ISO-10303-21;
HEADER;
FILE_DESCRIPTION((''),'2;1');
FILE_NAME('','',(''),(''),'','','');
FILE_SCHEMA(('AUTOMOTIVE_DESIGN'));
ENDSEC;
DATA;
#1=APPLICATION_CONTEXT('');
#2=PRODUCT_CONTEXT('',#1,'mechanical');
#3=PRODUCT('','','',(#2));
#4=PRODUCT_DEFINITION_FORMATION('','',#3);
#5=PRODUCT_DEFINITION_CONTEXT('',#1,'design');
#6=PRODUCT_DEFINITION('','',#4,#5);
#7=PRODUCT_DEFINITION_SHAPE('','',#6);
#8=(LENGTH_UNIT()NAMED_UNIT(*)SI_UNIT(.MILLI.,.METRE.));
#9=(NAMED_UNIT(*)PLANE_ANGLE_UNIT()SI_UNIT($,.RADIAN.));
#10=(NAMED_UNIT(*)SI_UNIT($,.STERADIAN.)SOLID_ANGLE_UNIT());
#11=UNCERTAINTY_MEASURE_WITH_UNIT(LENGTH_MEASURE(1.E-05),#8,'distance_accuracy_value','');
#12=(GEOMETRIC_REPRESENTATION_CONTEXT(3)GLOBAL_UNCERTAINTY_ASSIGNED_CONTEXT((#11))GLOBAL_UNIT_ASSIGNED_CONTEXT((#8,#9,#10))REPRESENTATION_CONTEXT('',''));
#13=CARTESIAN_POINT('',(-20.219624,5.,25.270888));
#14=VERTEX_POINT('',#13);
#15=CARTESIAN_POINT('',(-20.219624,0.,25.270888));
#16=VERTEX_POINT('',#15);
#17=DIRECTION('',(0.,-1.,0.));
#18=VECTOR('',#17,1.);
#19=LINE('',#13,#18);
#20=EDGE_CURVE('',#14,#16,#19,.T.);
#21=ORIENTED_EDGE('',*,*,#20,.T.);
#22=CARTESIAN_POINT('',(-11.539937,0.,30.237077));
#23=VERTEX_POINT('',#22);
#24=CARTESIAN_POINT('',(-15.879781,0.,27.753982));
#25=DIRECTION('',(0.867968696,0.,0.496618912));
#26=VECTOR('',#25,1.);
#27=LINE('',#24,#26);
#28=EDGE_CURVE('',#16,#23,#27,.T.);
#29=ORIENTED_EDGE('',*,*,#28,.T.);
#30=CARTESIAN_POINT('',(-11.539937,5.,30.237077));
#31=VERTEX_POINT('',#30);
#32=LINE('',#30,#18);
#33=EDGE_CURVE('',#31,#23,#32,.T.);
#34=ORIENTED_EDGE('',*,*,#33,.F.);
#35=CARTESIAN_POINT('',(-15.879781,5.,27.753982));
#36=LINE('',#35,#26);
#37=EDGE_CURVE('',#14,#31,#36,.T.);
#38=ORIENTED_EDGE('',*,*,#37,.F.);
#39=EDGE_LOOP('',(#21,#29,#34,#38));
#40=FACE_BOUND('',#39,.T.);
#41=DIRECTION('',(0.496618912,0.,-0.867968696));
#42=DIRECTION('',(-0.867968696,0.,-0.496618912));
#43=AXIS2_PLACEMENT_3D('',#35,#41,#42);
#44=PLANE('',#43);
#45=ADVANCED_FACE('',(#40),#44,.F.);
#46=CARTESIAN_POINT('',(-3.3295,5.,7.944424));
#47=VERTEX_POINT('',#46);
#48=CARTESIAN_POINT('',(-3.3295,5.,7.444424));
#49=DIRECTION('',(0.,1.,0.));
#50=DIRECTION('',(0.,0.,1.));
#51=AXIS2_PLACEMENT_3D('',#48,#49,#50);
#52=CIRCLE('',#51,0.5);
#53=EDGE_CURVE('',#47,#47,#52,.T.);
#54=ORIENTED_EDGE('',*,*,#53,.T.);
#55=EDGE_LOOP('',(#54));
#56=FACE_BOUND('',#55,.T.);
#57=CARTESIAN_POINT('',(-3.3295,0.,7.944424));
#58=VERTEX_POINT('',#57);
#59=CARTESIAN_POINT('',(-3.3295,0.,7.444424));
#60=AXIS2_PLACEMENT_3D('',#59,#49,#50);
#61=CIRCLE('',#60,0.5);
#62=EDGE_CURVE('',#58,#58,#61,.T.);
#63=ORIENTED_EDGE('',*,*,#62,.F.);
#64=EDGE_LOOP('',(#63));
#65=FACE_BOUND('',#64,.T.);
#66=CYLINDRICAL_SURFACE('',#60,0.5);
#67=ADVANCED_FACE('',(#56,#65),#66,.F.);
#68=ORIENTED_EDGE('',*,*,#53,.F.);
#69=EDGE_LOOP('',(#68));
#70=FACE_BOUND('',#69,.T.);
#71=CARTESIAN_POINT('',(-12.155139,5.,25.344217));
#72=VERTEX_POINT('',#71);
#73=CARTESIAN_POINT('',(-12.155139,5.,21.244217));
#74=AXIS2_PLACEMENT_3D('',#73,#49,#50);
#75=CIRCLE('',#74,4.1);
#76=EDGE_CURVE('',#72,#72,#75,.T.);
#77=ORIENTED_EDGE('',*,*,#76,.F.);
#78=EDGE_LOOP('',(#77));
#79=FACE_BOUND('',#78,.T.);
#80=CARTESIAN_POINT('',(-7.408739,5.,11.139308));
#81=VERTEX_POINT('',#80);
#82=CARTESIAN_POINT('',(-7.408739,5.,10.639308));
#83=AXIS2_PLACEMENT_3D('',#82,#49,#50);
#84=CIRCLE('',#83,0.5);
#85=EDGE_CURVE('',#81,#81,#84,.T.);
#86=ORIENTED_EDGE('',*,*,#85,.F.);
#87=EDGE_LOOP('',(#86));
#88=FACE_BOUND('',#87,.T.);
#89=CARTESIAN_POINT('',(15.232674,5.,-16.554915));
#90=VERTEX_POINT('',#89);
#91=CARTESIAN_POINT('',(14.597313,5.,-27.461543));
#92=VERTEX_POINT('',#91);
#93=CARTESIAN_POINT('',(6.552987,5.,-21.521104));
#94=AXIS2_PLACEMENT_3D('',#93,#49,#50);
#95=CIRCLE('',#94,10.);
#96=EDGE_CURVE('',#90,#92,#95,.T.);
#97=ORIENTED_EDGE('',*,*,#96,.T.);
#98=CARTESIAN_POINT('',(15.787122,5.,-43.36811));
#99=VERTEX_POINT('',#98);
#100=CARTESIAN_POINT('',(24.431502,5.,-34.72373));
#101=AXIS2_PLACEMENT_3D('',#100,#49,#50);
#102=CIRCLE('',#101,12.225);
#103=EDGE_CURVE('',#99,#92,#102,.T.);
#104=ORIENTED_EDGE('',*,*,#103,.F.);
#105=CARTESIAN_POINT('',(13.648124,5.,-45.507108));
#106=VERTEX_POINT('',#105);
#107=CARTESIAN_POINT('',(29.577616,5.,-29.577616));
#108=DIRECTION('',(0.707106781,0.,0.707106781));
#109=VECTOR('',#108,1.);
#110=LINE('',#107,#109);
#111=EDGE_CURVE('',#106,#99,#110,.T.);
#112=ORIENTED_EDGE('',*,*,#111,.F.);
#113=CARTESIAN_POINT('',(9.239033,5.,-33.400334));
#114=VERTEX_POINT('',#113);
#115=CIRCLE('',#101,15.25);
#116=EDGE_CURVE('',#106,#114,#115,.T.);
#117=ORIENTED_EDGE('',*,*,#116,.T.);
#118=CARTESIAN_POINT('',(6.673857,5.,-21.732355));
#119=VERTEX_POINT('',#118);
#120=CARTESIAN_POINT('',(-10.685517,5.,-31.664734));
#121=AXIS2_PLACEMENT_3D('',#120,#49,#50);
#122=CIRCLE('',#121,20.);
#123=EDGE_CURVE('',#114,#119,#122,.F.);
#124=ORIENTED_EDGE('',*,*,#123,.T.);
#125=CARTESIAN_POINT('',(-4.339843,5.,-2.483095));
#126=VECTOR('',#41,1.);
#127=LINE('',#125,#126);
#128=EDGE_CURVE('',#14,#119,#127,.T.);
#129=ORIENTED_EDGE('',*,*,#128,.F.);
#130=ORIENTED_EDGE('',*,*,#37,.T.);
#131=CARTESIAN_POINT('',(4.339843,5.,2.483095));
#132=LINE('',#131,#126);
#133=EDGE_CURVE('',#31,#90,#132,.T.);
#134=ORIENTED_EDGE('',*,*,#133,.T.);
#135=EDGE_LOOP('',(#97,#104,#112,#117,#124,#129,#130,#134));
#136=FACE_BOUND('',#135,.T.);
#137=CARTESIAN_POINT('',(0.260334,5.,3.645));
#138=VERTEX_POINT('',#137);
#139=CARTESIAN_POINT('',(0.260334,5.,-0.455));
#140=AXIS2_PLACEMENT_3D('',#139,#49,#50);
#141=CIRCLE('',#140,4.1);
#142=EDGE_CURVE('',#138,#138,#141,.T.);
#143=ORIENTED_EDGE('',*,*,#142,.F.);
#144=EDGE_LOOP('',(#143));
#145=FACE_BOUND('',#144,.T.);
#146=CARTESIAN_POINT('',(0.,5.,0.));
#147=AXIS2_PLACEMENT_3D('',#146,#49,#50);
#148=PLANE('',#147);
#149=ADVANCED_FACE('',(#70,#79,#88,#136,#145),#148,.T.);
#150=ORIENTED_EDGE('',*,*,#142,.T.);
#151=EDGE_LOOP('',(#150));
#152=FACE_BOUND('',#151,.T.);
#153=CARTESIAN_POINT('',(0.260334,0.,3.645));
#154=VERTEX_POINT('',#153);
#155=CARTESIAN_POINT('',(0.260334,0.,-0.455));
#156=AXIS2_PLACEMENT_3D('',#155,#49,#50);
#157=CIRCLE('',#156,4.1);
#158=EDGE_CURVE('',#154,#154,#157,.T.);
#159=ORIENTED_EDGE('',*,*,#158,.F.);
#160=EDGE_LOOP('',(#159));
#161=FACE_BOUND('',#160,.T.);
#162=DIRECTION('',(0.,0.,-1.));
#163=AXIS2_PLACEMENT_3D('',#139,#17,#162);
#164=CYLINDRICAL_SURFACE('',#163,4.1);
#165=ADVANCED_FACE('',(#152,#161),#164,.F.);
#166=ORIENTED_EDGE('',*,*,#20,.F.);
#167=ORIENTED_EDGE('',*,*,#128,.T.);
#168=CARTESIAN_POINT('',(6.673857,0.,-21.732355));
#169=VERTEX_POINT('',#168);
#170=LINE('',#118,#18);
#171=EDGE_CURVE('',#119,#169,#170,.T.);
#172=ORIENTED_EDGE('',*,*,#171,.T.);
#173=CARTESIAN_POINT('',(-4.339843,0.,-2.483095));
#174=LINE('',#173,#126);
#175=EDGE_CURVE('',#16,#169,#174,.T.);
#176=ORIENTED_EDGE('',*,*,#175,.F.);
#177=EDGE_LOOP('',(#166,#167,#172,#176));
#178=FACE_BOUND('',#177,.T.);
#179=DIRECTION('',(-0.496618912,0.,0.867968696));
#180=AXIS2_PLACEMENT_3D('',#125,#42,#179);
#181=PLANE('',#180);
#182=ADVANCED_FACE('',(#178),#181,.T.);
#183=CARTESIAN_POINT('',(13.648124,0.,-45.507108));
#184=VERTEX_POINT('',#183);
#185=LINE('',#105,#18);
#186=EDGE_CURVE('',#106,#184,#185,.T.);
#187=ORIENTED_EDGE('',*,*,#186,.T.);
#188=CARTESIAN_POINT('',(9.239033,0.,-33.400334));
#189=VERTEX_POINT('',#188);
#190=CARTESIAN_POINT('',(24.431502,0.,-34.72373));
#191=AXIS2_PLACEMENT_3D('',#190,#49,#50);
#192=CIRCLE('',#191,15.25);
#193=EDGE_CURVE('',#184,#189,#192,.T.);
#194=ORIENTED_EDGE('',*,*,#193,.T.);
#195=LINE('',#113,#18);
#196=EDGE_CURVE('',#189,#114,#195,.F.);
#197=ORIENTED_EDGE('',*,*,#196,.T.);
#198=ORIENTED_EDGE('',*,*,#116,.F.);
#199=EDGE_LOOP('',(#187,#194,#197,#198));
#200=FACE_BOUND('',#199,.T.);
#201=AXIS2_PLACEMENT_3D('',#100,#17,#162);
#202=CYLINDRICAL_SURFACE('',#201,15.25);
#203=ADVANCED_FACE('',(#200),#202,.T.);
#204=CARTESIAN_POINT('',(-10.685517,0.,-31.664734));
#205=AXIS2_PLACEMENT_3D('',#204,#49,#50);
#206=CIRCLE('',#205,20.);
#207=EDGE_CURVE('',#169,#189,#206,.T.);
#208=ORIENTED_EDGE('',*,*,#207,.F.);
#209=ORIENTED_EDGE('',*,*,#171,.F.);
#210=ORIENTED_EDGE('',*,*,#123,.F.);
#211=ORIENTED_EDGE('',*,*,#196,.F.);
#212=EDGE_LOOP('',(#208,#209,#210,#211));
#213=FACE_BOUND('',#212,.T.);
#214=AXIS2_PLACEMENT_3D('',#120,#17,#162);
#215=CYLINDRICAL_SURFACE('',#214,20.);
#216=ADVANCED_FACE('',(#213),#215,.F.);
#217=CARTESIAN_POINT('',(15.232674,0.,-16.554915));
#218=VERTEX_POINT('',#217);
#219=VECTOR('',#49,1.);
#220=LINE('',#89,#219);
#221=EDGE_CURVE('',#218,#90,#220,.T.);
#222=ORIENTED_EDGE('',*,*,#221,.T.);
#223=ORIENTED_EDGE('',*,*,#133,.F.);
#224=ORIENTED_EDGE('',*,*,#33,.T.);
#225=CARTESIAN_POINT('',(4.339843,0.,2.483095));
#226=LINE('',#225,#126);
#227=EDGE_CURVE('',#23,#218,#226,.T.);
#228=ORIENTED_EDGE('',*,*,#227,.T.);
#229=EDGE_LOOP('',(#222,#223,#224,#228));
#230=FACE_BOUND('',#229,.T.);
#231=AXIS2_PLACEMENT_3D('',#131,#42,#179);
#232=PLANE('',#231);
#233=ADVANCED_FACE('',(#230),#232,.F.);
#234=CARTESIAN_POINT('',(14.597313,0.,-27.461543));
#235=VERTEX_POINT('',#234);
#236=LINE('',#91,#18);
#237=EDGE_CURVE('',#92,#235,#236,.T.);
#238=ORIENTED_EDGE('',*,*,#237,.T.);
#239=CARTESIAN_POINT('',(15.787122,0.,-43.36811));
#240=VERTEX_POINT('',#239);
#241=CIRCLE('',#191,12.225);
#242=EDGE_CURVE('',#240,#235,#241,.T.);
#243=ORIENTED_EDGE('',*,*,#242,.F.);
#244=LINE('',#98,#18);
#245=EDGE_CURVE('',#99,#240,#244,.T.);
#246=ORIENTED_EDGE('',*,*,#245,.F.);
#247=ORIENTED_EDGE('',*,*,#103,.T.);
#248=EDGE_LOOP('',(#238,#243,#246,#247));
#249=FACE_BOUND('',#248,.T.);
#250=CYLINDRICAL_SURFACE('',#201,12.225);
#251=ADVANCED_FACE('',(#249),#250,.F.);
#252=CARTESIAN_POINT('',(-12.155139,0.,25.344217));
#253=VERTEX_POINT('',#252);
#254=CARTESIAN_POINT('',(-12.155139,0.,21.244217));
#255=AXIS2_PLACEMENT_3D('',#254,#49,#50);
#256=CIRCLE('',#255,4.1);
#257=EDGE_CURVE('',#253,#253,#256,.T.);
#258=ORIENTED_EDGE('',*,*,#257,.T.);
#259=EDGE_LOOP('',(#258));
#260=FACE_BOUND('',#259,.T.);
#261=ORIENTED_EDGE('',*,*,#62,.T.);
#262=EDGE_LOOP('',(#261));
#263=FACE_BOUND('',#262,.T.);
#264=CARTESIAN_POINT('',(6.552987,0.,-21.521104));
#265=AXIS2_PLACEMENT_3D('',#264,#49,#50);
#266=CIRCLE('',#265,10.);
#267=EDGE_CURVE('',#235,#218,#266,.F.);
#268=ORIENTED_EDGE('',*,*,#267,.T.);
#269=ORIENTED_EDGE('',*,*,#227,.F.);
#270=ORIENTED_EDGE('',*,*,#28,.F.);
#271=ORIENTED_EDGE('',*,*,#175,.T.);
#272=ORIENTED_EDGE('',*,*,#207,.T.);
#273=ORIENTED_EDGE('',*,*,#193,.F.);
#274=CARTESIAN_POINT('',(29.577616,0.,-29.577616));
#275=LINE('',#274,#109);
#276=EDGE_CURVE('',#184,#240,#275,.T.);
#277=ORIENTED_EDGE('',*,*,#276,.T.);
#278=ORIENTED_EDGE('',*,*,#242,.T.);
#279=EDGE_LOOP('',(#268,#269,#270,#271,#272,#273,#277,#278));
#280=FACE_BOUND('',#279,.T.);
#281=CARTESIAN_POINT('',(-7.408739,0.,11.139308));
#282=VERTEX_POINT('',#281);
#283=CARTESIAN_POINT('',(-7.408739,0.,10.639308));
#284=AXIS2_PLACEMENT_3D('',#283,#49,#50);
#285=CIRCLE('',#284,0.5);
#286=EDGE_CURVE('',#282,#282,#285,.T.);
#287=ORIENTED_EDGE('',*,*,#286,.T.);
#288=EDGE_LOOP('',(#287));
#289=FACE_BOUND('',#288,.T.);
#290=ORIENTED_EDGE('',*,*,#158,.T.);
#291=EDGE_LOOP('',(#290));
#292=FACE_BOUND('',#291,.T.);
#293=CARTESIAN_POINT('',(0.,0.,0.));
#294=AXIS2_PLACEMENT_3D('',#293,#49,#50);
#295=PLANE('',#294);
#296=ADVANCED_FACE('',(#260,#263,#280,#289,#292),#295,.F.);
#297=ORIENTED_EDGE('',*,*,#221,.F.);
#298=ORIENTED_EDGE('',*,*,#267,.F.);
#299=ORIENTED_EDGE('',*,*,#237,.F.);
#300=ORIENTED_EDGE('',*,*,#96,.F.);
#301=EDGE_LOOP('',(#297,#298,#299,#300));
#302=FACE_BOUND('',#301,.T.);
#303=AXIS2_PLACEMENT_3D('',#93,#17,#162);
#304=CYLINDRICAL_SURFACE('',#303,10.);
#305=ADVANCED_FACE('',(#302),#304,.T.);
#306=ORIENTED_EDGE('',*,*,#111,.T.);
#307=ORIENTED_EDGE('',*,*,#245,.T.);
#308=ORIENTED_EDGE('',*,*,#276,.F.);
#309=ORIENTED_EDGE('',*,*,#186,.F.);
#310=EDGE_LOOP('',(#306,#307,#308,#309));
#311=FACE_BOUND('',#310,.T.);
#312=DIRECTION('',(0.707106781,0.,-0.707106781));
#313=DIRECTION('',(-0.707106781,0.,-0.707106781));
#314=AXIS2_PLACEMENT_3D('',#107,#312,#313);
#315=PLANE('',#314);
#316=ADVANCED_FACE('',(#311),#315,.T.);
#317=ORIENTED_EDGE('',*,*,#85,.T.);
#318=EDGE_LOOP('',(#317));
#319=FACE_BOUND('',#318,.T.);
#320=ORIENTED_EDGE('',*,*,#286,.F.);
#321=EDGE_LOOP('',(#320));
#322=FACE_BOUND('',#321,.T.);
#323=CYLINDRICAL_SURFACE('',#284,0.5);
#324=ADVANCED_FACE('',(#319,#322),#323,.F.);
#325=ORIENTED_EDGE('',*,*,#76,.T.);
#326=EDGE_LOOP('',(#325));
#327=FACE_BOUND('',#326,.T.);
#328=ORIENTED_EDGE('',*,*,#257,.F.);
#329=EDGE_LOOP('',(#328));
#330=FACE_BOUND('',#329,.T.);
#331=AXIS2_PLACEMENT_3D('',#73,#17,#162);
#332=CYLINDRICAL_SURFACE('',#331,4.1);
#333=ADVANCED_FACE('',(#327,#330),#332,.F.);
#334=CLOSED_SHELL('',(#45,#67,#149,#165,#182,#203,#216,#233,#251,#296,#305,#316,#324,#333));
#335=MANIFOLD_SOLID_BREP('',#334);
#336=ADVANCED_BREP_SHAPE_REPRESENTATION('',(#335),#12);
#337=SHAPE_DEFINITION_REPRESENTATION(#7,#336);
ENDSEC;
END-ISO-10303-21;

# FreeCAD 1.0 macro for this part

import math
import FreeCAD as App
import Part
import Sketcher
Q = App.Units.Quantity


def edges_at(feature, points):
    """Names of the edges that pass closest to the given points."""
    edges = feature.Shape.Edges
    near = lambda p: min(range(len(edges)), key=lambda i: edges[i].distToShape(Part.Vertex(*p))[0])
    return sorted({f"Edge{near(p) + 1}" for p in points})

doc = App.newDocument("Part")
params = doc.addObject("Spreadsheet::Sheet", "Params")
for row, (alias, value) in enumerate([
    ("sketch1_diameter", "8.2 mm"),
    ("sketch1_radius", "15.25 mm"),
    ("sketch1_length", "10 mm"),
    ("pad1_length", "5 mm"),
    ("fillet_radius", "20 mm"),
    ("sketch2_diameter", "1 mm"),
    ("fillet2_radius", "10 mm"),
], start=1):
    params.set(f"A{row}", alias)
    params.set(f"B{row}", "=" + value)
    params.setAlias(f"B{row}", alias)

body = doc.addObject("PartDesign::Body", "Body")

# Sketch on XZ plane
sketch1 = doc.addObject("Sketcher::SketchObject", "Sketch")
body.addObject(sketch1)
sketch1.AttachmentSupport = (doc.XZ_Plane, [""])
sketch1.MapMode = "FlatFace"
sketch1.addGeometry([
    Part.LineSegment(App.Vector(10.5, -28.5, 0), App.Vector(-20.2, 25.3, 0)),  # 0
    Part.LineSegment(App.Vector(-20.2, 25.3, 0), App.Vector(-11.5, 30.2, 0)),  # 1
    Part.LineSegment(App.Vector(-11.5, 30.2, 0), App.Vector(19.3, -23.6, 0)),  # 2
    Part.ArcOfCircle(Part.Circle(App.Vector(24.4, -34.7, 0), App.Vector(0, 0, 1), 12.2), math.radians(115), math.radians(225)),  # 3
    Part.LineSegment(App.Vector(15.8, -43.4, 0), App.Vector(13.6, -45.5, 0)),  # 4
    Part.ArcOfCircle(Part.Circle(App.Vector(24.4, -34.7, 0), App.Vector(0, 0, 1), 15.2), math.radians(156), math.radians(225)),  # 5
    Part.Circle(App.Vector(-12.2, 21.2, 0), App.Vector(0, 0, 1), 4.1),  # 6
    Part.Circle(App.Vector(0.3, -0.5, 0), App.Vector(0, 0, 1), 4.1),  # 7
], False)
sketch1.addConstraint([
    Sketcher.Constraint("Coincident", 0, 2, 1, 1),
    Sketcher.Constraint("Coincident", 1, 2, 2, 1),
    Sketcher.Constraint("Coincident", 2, 2, 3, 1),
    Sketcher.Constraint("Coincident", 3, 2, 4, 1),
    Sketcher.Constraint("Coincident", 4, 2, 5, 2),
    Sketcher.Constraint("Coincident", 5, 1, 0, 1),
    Sketcher.Constraint("Coincident", 5, 3, 3, 3),
    Sketcher.Constraint("Equal", 6, 7),
    Sketcher.Constraint("Perpendicular", 0, 1),
    Sketcher.Constraint("Perpendicular", 1, 2),
    Sketcher.Constraint("Diameter", 6, 8.2),
    Sketcher.Constraint("Angle", 4, Q("-135 deg")),
    Sketcher.Constraint("Radius", 5, 15.25),
    Sketcher.Constraint("Distance", 1, 10.0),
    Sketcher.Constraint("Radius", 3, 12.225),
    Sketcher.Constraint("DistanceY", 7, 3, -1, 1, 0.455),
    Sketcher.Constraint("DistanceY", 5, 1, -1, 1, 28.464),
    Sketcher.Constraint("DistanceX", -1, 1, 3, 3, 24.431502),
    Sketcher.Constraint("DistanceX", 6, 3, 1, 2, 0.615202),
    Sketcher.Constraint("DistanceX", 7, 3, 2, 2, 19.023498),
    Sketcher.Constraint("Distance", 2, 62.067249),
    Sketcher.Constraint("DistanceY", 3, 3, -1, 1, 34.72373),
    Sketcher.Constraint("DistanceX", 6, 3, -1, 1, 12.155139),
    Sketcher.Constraint("DistanceX", -1, 1, 3, 2, 15.787122),
    Sketcher.Constraint("DistanceY", 6, 3, 0, 2, 4.026671),
])
sketch1.setExpression("Constraints[10]", "Params.sketch1_diameter")
sketch1.setExpression("Constraints[12]", "Params.sketch1_radius")
sketch1.setExpression("Constraints[13]", "Params.sketch1_length")
pad1 = doc.addObject("PartDesign::Pad", "Pad")
body.addObject(pad1)
pad1.Profile = sketch1
pad1.setExpression("Length", "Params.pad1_length")
pad1.Reversed = True
doc.recompute()

fillet = doc.addObject("PartDesign::Fillet", "Fillet")
body.addObject(fillet)
fillet.Base = (pad1, edges_at(pad1, [(10.525, 2.5, -28.464)]))
fillet.setExpression("Radius", "Params.fillet_radius")

# Sketch on XZ plane
sketch2 = doc.addObject("Sketcher::SketchObject", "Sketch001")
body.addObject(sketch2)
sketch2.AttachmentSupport = (doc.XZ_Plane, [""])
sketch2.MapMode = "FlatFace"
sketch2.AttachmentOffset = App.Placement(App.Vector(0, 0, -5), App.Rotation())
sketch2.addGeometry([
    Part.Circle(App.Vector(-7.4, 10.6, 0), App.Vector(0, 0, 1), 0.5),
    Part.Circle(App.Vector(-3.3, 7.4, 0), App.Vector(0, 0, 1), 0.5),
], False)
sketch2.addConstraint([
    Sketcher.Constraint("Equal", 0, 1),
    Sketcher.Constraint("Diameter", 0, 1.0),
    Sketcher.Constraint("DistanceX", 1, 3, -1, 1, 3.3295),
    Sketcher.Constraint("DistanceX", 0, 3, -1, 1, 7.408739),
    Sketcher.Constraint("DistanceY", -1, 1, 0, 3, 10.639308),
    Sketcher.Constraint("DistanceY", -1, 1, 1, 3, 7.444424),
])
sketch2.setExpression("Constraints[1]", "Params.sketch2_diameter")
pocket1 = doc.addObject("PartDesign::Pocket", "Pocket")
body.addObject(pocket1)
pocket1.Profile = sketch2
pocket1.Type = "ThroughAll"
pocket1.Reversed = True
doc.recompute()

fillet2 = doc.addObject("PartDesign::Fillet", "Fillet001")
body.addObject(fillet2)
fillet2.Base = (pocket1, edges_at(pocket1, [(19.284, 2.5, -23.635)]))
fillet2.setExpression("Radius", "Params.fillet2_radius")

doc.recompute()
